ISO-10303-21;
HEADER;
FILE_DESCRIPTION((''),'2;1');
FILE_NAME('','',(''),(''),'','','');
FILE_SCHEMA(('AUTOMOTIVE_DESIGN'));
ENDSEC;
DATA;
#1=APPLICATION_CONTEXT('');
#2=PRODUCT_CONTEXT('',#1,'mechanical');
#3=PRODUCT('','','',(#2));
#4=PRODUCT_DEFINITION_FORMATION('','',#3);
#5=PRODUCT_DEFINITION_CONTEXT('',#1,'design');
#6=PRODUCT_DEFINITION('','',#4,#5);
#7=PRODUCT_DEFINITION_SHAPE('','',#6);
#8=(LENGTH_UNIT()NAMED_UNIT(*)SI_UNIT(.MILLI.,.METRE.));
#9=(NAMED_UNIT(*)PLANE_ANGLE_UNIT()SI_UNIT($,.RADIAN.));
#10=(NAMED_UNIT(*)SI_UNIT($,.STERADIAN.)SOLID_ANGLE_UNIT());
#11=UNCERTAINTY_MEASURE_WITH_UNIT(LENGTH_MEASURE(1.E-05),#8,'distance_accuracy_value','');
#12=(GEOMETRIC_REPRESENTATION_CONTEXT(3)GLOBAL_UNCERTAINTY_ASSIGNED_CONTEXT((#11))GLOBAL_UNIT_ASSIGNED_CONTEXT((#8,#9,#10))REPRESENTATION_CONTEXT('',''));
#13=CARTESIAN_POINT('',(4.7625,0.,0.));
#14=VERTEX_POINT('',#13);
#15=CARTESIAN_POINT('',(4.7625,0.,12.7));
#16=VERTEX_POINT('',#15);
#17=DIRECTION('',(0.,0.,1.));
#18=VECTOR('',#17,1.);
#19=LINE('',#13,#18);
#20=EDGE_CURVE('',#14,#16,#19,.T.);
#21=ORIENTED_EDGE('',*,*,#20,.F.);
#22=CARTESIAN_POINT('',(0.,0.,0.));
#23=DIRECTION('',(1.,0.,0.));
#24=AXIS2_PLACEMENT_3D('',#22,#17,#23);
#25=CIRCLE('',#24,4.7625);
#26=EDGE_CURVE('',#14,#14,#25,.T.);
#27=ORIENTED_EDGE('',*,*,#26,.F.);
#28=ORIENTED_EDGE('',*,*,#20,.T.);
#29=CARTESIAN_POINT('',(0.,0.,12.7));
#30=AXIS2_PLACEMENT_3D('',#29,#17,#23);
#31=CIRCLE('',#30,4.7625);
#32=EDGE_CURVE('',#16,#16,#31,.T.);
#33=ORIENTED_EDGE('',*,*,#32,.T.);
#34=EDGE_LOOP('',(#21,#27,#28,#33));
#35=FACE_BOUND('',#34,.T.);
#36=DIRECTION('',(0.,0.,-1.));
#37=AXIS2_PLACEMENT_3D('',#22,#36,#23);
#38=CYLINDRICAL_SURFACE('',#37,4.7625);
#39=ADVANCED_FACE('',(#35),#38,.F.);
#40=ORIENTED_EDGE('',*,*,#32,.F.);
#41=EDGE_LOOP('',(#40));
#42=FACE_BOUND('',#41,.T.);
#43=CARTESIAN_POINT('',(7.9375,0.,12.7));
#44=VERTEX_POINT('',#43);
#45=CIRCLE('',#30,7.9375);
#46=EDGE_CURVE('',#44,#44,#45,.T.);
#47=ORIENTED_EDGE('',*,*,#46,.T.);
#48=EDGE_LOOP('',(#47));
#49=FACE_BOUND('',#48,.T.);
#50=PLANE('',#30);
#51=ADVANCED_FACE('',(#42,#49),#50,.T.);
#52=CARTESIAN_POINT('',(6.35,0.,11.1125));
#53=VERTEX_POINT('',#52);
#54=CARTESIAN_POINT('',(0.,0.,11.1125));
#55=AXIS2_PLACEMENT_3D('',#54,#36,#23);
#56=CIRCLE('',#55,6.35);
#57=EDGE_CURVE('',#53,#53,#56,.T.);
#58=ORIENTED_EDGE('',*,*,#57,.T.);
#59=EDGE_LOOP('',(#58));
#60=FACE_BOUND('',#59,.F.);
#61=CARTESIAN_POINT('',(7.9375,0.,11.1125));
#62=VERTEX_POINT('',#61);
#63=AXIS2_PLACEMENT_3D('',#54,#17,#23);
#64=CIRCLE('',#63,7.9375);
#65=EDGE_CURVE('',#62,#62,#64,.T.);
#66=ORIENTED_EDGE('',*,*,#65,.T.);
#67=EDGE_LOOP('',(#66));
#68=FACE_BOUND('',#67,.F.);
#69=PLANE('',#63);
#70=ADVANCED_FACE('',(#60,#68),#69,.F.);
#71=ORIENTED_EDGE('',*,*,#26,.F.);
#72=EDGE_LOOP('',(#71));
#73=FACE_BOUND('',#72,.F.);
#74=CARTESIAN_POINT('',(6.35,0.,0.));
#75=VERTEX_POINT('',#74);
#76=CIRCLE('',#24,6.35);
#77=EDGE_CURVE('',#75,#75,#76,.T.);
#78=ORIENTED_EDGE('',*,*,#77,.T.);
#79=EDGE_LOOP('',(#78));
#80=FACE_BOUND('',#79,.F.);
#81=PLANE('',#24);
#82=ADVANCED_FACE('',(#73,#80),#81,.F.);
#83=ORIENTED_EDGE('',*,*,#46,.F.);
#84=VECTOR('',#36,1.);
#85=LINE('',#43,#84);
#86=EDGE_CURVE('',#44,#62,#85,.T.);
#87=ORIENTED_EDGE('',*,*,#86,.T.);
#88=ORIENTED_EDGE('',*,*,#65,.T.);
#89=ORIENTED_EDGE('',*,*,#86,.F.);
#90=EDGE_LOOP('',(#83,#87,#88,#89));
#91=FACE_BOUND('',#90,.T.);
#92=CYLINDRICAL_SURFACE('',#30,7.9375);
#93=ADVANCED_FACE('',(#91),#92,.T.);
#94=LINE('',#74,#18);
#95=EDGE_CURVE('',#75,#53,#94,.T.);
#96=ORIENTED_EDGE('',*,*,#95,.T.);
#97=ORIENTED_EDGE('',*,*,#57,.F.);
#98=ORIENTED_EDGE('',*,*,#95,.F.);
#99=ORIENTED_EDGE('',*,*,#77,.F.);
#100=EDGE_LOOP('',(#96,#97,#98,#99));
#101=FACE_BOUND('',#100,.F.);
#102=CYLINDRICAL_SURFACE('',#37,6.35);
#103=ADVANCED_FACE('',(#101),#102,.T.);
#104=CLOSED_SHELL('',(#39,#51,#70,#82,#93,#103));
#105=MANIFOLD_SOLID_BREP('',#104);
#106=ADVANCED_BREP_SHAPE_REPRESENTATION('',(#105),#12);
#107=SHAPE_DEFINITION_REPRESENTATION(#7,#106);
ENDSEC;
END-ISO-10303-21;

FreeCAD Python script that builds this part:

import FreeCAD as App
import Part
import Sketcher
from FreeCAD import Vector
Q = App.Units.Quantity

doc = App.newDocument("Part")
body = doc.addObject("PartDesign::Body", "Body")

# Sketch on XY plane
sketch1 = body.newObject("Sketcher::SketchObject", "Sketch")
sketch1.AttachmentSupport = (doc.getObject("XY_Plane"), [""])
sketch1.MapMode = "FlatFace"
sketch1.addGeometry([
    Part.Circle(Vector(0, 0, 0), Vector(0, 0, 1), 6.3),
    Part.Circle(Vector(0, 0, 0), Vector(0, 0, 1), 4.8),
], False)
sketch1.addConstraint([
    Sketcher.Constraint("Coincident", 0, 3, -1, 1),
    Sketcher.Constraint("Coincident", 1, 3, -1, 1),
    Sketcher.Constraint("Diameter", 0, Q("0.5 in")),
    Sketcher.Constraint("Diameter", 1, Q("0.375 in")),
])
pad1 = body.newObject("PartDesign::Pad", "Pad")
pad1.Profile = sketch1
pad1.Length = Q("0.5 in")

# Sketch on XY plane
sketch2 = body.newObject("Sketcher::SketchObject", "Sketch001")
sketch2.AttachmentSupport = (doc.getObject("XY_Plane"), [""])
sketch2.MapMode = "FlatFace"
sketch2.AttachmentOffset = App.Placement(Vector(0, 0, 0.5 * 25.4), App.Rotation())
sketch2.addGeometry([
    Part.Circle(Vector(0, 0, 0), Vector(0, 0, 1), 7.9),
    Part.Circle(Vector(0, 0, 0), Vector(0, 0, 1), 4.8),
], False)
sketch2.addConstraint([
    Sketcher.Constraint("Coincident", 0, 3, -1, 1),
    Sketcher.Constraint("Coincident", 1, 3, -1, 1),
    Sketcher.Constraint("Diameter", 0, Q("0.625 in")),
    Sketcher.Constraint("Diameter", 1, Q("0.375 in")),
])
pad2 = body.newObject("PartDesign::Pad", "Pad001")
pad2.Profile = sketch2
pad2.Length = Q("0.0625 in")
pad2.Reversed = True

doc.recompute()
